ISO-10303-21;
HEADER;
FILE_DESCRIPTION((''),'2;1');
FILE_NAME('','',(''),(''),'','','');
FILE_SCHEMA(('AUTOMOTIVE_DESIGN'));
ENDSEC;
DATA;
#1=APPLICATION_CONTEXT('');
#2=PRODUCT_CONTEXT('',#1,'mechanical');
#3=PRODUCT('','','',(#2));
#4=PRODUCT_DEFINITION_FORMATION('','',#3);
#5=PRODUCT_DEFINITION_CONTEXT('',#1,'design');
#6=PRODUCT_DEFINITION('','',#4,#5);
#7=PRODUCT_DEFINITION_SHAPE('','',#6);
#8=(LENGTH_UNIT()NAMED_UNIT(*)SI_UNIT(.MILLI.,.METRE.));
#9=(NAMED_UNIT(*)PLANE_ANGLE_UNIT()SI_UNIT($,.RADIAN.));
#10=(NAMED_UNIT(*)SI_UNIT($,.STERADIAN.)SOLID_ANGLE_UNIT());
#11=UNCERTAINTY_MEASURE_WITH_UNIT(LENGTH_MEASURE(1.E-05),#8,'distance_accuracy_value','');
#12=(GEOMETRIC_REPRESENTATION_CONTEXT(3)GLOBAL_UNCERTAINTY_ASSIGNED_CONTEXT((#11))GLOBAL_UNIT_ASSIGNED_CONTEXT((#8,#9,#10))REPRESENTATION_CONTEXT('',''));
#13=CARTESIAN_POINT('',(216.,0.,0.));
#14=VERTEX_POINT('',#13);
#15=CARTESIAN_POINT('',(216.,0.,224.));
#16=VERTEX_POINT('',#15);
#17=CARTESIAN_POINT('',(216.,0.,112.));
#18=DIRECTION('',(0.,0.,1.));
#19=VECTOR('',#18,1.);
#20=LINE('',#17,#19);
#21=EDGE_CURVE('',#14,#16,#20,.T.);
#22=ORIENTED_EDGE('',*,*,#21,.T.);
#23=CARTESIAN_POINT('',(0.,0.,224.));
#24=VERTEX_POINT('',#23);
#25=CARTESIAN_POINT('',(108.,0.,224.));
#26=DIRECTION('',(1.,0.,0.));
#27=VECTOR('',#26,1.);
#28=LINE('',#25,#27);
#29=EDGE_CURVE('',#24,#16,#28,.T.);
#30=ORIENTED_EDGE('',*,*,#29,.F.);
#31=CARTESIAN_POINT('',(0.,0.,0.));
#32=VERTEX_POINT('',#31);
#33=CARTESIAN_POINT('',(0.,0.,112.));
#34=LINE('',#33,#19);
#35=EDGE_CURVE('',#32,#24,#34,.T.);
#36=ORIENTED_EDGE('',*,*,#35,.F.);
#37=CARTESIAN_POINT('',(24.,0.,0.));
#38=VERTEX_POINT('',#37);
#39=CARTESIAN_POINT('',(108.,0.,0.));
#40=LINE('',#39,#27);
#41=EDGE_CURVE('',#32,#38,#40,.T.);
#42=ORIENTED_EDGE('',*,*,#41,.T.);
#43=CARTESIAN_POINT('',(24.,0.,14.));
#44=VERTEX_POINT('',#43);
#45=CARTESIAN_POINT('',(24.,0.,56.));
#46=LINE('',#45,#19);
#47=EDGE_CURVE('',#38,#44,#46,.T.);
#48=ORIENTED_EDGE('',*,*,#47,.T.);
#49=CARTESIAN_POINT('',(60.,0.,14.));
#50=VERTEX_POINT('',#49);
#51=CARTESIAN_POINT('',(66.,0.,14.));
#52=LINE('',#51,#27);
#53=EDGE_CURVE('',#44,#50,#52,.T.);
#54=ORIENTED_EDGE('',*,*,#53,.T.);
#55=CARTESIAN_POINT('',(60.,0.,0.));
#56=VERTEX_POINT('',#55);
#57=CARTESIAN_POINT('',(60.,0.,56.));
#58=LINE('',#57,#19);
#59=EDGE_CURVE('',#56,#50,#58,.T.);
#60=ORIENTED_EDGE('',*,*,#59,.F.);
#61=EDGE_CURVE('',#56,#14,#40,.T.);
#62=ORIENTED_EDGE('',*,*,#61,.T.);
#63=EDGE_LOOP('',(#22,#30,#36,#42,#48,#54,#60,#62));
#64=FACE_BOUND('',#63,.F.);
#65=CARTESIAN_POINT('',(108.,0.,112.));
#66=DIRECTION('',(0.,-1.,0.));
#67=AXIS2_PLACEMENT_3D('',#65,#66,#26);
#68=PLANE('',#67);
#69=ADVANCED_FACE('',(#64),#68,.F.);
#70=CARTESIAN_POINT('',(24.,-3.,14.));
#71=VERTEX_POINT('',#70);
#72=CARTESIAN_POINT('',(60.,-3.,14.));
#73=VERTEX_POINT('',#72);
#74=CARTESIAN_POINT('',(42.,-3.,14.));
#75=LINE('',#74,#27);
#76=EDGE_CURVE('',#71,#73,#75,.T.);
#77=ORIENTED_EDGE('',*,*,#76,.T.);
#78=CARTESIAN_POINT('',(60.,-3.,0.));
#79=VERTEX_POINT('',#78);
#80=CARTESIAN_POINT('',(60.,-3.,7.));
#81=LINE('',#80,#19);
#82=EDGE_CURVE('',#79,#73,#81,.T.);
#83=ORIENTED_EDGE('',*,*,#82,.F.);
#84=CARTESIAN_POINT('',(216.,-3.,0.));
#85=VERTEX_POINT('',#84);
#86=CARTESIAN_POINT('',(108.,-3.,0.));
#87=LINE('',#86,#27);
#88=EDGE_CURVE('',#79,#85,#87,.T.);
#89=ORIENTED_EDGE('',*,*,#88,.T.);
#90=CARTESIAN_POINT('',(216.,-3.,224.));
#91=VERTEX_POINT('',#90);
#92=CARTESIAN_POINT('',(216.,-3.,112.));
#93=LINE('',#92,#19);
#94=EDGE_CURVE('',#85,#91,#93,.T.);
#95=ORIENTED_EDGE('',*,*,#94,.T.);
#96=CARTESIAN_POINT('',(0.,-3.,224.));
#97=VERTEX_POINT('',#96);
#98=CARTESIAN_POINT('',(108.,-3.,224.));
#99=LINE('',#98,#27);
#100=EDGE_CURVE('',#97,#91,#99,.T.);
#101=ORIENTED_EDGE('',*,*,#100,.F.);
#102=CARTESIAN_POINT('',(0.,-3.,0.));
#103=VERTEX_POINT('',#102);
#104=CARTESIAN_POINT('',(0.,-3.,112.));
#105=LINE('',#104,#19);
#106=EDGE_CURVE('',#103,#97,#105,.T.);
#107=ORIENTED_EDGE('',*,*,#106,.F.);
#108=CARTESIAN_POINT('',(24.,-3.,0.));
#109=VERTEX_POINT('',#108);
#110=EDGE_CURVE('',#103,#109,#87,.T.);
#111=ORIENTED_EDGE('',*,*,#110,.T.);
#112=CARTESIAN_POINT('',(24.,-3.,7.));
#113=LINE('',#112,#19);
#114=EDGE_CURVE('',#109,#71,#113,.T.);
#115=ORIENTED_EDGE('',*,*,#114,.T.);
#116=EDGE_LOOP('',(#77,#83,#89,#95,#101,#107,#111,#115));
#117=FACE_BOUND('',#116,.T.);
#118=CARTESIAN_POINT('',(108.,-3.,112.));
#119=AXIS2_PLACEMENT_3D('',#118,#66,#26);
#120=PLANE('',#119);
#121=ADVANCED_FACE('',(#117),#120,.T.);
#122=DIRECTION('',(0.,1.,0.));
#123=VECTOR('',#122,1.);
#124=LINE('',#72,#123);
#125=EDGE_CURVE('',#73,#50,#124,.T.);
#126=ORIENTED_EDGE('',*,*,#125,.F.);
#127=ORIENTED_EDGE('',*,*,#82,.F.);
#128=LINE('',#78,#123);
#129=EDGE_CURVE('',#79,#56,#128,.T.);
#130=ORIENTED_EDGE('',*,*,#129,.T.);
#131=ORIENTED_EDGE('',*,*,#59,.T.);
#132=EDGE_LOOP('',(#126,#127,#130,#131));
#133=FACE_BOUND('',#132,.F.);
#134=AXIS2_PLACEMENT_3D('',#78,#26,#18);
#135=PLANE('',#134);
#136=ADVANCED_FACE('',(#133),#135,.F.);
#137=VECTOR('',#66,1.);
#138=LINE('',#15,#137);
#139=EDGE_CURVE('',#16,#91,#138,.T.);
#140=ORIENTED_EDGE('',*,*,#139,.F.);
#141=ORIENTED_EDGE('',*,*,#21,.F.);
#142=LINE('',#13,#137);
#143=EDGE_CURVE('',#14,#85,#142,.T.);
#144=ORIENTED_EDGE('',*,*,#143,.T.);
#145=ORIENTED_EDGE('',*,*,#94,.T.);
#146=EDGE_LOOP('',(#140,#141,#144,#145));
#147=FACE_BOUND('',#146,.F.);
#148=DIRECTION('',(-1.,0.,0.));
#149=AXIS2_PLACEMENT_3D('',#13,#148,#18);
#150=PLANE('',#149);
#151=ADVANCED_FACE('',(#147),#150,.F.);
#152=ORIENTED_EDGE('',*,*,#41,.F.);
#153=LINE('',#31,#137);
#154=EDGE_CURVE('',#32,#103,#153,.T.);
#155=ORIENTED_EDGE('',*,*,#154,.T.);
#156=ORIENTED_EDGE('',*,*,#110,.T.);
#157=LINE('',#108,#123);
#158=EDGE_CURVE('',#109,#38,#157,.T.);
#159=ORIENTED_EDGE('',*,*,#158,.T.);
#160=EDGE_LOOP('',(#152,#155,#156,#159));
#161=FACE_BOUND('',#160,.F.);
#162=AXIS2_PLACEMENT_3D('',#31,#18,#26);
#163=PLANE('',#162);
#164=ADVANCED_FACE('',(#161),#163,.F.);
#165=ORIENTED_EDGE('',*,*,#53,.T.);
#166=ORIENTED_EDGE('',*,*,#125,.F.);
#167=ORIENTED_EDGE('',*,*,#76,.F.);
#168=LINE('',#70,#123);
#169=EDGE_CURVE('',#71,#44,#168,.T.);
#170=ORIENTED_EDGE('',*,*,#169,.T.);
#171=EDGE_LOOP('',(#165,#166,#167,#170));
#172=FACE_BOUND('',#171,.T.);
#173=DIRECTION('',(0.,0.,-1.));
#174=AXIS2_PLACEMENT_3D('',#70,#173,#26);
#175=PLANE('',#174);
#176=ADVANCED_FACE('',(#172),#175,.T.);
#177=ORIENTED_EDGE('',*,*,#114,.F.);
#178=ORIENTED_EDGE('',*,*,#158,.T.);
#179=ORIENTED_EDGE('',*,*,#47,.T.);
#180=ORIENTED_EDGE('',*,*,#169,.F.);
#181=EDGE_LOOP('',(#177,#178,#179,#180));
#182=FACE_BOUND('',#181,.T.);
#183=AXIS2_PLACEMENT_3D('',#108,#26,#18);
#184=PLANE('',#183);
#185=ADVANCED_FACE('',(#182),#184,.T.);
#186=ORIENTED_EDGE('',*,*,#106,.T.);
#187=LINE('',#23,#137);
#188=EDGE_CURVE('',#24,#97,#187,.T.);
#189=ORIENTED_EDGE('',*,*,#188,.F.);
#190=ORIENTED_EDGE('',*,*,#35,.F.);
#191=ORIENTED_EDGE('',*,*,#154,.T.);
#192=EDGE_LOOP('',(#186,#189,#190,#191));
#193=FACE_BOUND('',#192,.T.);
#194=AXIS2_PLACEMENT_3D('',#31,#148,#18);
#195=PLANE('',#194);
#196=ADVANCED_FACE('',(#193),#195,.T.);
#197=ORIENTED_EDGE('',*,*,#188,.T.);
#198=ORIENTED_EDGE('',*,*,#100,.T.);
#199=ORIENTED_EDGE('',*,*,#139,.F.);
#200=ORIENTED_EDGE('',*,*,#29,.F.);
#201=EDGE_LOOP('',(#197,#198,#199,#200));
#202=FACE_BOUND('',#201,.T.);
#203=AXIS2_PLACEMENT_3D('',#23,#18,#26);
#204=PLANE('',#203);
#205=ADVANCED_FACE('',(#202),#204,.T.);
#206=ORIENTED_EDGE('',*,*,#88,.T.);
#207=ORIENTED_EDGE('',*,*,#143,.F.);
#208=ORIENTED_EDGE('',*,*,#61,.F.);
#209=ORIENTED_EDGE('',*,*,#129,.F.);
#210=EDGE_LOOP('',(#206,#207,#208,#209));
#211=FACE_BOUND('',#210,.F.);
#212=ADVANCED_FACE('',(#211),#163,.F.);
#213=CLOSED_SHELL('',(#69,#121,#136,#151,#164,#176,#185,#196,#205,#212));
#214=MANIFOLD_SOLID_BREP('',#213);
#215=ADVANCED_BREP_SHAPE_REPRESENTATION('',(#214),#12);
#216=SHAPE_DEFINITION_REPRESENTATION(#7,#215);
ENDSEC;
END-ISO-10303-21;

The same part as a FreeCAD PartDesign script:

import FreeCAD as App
import Part
import Sketcher

V = App.Vector
Q = App.Units.Quantity

doc = App.newDocument("Part")
body = doc.addObject("PartDesign::Body", "Body")

sketch1 = body.newObject("Sketcher::SketchObject", "Sketch")
sketch1.AttachmentSupport = (doc.getObject("XZ_Plane"), [""])
sketch1.MapMode = "FlatFace"
sketch1.addGeometry(Part.LineSegment(V(0, 224, 0), V(0, 0, 0)), False)
sketch1.addGeometry(Part.LineSegment(V(0, 0, 0), V(216, 0, 0)), False)
sketch1.addGeometry(Part.LineSegment(V(216, 0, 0), V(216, 224, 0)), False)
sketch1.addGeometry(Part.LineSegment(V(216, 224, 0), V(0, 224, 0)), False)
sketch1.addConstraint(Sketcher.Constraint("Coincident", 0, 2, 1, 1))
sketch1.addConstraint(Sketcher.Constraint("Coincident", 1, 2, 2, 1))
sketch1.addConstraint(Sketcher.Constraint("Coincident", 2, 2, 3, 1))
sketch1.addConstraint(Sketcher.Constraint("Coincident", 3, 2, 0, 1))
sketch1.addConstraint(Sketcher.Constraint("Vertical", 0))
sketch1.addConstraint(Sketcher.Constraint("Horizontal", 1))
sketch1.addConstraint(Sketcher.Constraint("Vertical", 2))
sketch1.addConstraint(Sketcher.Constraint("Horizontal", 3))
sketch1.addConstraint(Sketcher.Constraint("Coincident", 0, 2, -1, 1))
sketch1.addConstraint(Sketcher.Constraint("DistanceX", 1, 1, 1, 2, Q("216 mm")))
sketch1.addConstraint(Sketcher.Constraint("DistanceY", 0, 2, 0, 1, Q("224 mm")))
pad1 = body.newObject("PartDesign::Pad", "Pad")
pad1.Profile = sketch1
pad1.Length = 3

sketch2 = body.newObject("Sketcher::SketchObject", "Sketch001")
sketch2.AttachmentSupport = (doc.getObject("XZ_Plane"), [""])
sketch2.MapMode = "FlatFace"
sketch2.AttachmentOffset = App.Placement(V(0, 0, 3), App.Rotation())
sketch2.addGeometry(Part.LineSegment(V(24, 14, 0), V(24, 0, 0)), False)
sketch2.addGeometry(Part.LineSegment(V(24, 0, 0), V(60, 0, 0)), False)
sketch2.addGeometry(Part.LineSegment(V(60, 0, 0), V(60, 14, 0)), False)
sketch2.addGeometry(Part.LineSegment(V(60, 14, 0), V(24, 14, 0)), False)
sketch2.addConstraint(Sketcher.Constraint("Coincident", 0, 2, 1, 1))
sketch2.addConstraint(Sketcher.Constraint("Coincident", 1, 2, 2, 1))
sketch2.addConstraint(Sketcher.Constraint("Coincident", 2, 2, 3, 1))
sketch2.addConstraint(Sketcher.Constraint("Coincident", 3, 2, 0, 1))
sketch2.addConstraint(Sketcher.Constraint("Vertical", 0))
sketch2.addConstraint(Sketcher.Constraint("Horizontal", 1))
sketch2.addConstraint(Sketcher.Constraint("Vertical", 2))
sketch2.addConstraint(Sketcher.Constraint("Horizontal", 3))
sketch2.addConstraint(Sketcher.Constraint("PointOnObject", 0, 2, -1))
sketch2.addConstraint(Sketcher.Constraint("DistanceX", 1, 1, 1, 2, Q("36 mm")))
sketch2.addConstraint(Sketcher.Constraint("DistanceY", 0, 2, 0, 1, Q("14 mm")))
sketch2.addConstraint(Sketcher.Constraint("DistanceX", -1, 1, 0, 2, Q("24 mm")))
pocket1 = body.newObject("PartDesign::Pocket", "Pocket")
pocket1.Profile = sketch2
pocket1.Type = "ThroughAll"

doc.recompute()
